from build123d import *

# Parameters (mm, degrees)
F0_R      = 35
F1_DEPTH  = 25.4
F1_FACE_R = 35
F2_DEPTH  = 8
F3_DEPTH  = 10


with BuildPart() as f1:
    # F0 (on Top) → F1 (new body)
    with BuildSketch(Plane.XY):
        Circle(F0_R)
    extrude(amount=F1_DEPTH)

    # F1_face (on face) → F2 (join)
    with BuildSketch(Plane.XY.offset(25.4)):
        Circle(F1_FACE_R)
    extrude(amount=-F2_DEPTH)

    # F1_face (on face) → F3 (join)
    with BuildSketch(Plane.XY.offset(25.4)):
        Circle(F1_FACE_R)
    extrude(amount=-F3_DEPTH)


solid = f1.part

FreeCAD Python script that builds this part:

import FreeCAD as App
import Part
import Sketcher
from FreeCAD import Vector
Q = App.Units.Quantity

doc = App.newDocument("Part")
params = doc.addObject("Spreadsheet::Sheet", "Params")
for row, (alias, value) in enumerate([
    ("sketch1_diameter", "70 mm"),
    ("pad1_length", "25.4 mm"),
    ("sketch2_diameter", "70 mm"),
    ("pad2_length", "8 mm"),
    ("sketch3_diameter", "70 mm"),
    ("pad3_length", "10 mm"),
], start=1):
    params.set(f"A{row}", alias)
    params.set(f"B{row}", "=" + value)
    params.setAlias(f"B{row}", alias)

body = doc.addObject("PartDesign::Body", "Body")

sketch1 = body.newObject("Sketcher::SketchObject", "Sketch")
sketch1.AttachmentSupport = (doc.getObject("XY_Plane"), [""])
sketch1.MapMode = "FlatFace"
sketch1.addGeometry(Part.Circle(Vector(0, 0, 0), Vector(0, 0, 1), 35), False)
sketch1.addConstraint(Sketcher.Constraint("Coincident", 0, 3, -1, 1))
sketch1.addConstraint(Sketcher.Constraint("Diameter", 0, Q("70 mm")))
sketch1.setExpression("Constraints[1]", "Params.sketch1_diameter")
pad1 = body.newObject("PartDesign::Pad", "Pad")
pad1.Profile = sketch1
pad1.setExpression("Length", "Params.pad1_length")

sketch2 = body.newObject("Sketcher::SketchObject", "Sketch001")
sketch2.AttachmentSupport = (doc.getObject("XY_Plane"), [""])
sketch2.MapMode = "FlatFace"
sketch2.AttachmentOffset = App.Placement(Vector(0, 0, 25.4), App.Rotation())
sketch2.addGeometry(Part.Circle(Vector(0, 0, 0), Vector(0, 0, 1), 35), False)
sketch2.addConstraint(Sketcher.Constraint("Coincident", 0, 3, -1, 1))
sketch2.addConstraint(Sketcher.Constraint("Diameter", 0, Q("70 mm")))
sketch2.setExpression("Constraints[1]", "Params.sketch2_diameter")
pad2 = body.newObject("PartDesign::Pad", "Pad001")
pad2.Profile = sketch2
pad2.setExpression("Length", "Params.pad2_length")
pad2.Reversed = True

sketch3 = body.newObject("Sketcher::SketchObject", "Sketch002")
sketch3.AttachmentSupport = (doc.getObject("XY_Plane"), [""])
sketch3.MapMode = "FlatFace"
sketch3.AttachmentOffset = App.Placement(Vector(0, 0, 25.4), App.Rotation())
sketch3.addGeometry(Part.Circle(Vector(0, 0, 0), Vector(0, 0, 1), 35), False)
sketch3.addConstraint(Sketcher.Constraint("Coincident", 0, 3, -1, 1))
sketch3.addConstraint(Sketcher.Constraint("Diameter", 0, Q("70 mm")))
sketch3.setExpression("Constraints[1]", "Params.sketch3_diameter")
pad3 = body.newObject("PartDesign::Pad", "Pad002")
pad3.Profile = sketch3
pad3.setExpression("Length", "Params.pad3_length")
pad3.Reversed = True

doc.recompute()
